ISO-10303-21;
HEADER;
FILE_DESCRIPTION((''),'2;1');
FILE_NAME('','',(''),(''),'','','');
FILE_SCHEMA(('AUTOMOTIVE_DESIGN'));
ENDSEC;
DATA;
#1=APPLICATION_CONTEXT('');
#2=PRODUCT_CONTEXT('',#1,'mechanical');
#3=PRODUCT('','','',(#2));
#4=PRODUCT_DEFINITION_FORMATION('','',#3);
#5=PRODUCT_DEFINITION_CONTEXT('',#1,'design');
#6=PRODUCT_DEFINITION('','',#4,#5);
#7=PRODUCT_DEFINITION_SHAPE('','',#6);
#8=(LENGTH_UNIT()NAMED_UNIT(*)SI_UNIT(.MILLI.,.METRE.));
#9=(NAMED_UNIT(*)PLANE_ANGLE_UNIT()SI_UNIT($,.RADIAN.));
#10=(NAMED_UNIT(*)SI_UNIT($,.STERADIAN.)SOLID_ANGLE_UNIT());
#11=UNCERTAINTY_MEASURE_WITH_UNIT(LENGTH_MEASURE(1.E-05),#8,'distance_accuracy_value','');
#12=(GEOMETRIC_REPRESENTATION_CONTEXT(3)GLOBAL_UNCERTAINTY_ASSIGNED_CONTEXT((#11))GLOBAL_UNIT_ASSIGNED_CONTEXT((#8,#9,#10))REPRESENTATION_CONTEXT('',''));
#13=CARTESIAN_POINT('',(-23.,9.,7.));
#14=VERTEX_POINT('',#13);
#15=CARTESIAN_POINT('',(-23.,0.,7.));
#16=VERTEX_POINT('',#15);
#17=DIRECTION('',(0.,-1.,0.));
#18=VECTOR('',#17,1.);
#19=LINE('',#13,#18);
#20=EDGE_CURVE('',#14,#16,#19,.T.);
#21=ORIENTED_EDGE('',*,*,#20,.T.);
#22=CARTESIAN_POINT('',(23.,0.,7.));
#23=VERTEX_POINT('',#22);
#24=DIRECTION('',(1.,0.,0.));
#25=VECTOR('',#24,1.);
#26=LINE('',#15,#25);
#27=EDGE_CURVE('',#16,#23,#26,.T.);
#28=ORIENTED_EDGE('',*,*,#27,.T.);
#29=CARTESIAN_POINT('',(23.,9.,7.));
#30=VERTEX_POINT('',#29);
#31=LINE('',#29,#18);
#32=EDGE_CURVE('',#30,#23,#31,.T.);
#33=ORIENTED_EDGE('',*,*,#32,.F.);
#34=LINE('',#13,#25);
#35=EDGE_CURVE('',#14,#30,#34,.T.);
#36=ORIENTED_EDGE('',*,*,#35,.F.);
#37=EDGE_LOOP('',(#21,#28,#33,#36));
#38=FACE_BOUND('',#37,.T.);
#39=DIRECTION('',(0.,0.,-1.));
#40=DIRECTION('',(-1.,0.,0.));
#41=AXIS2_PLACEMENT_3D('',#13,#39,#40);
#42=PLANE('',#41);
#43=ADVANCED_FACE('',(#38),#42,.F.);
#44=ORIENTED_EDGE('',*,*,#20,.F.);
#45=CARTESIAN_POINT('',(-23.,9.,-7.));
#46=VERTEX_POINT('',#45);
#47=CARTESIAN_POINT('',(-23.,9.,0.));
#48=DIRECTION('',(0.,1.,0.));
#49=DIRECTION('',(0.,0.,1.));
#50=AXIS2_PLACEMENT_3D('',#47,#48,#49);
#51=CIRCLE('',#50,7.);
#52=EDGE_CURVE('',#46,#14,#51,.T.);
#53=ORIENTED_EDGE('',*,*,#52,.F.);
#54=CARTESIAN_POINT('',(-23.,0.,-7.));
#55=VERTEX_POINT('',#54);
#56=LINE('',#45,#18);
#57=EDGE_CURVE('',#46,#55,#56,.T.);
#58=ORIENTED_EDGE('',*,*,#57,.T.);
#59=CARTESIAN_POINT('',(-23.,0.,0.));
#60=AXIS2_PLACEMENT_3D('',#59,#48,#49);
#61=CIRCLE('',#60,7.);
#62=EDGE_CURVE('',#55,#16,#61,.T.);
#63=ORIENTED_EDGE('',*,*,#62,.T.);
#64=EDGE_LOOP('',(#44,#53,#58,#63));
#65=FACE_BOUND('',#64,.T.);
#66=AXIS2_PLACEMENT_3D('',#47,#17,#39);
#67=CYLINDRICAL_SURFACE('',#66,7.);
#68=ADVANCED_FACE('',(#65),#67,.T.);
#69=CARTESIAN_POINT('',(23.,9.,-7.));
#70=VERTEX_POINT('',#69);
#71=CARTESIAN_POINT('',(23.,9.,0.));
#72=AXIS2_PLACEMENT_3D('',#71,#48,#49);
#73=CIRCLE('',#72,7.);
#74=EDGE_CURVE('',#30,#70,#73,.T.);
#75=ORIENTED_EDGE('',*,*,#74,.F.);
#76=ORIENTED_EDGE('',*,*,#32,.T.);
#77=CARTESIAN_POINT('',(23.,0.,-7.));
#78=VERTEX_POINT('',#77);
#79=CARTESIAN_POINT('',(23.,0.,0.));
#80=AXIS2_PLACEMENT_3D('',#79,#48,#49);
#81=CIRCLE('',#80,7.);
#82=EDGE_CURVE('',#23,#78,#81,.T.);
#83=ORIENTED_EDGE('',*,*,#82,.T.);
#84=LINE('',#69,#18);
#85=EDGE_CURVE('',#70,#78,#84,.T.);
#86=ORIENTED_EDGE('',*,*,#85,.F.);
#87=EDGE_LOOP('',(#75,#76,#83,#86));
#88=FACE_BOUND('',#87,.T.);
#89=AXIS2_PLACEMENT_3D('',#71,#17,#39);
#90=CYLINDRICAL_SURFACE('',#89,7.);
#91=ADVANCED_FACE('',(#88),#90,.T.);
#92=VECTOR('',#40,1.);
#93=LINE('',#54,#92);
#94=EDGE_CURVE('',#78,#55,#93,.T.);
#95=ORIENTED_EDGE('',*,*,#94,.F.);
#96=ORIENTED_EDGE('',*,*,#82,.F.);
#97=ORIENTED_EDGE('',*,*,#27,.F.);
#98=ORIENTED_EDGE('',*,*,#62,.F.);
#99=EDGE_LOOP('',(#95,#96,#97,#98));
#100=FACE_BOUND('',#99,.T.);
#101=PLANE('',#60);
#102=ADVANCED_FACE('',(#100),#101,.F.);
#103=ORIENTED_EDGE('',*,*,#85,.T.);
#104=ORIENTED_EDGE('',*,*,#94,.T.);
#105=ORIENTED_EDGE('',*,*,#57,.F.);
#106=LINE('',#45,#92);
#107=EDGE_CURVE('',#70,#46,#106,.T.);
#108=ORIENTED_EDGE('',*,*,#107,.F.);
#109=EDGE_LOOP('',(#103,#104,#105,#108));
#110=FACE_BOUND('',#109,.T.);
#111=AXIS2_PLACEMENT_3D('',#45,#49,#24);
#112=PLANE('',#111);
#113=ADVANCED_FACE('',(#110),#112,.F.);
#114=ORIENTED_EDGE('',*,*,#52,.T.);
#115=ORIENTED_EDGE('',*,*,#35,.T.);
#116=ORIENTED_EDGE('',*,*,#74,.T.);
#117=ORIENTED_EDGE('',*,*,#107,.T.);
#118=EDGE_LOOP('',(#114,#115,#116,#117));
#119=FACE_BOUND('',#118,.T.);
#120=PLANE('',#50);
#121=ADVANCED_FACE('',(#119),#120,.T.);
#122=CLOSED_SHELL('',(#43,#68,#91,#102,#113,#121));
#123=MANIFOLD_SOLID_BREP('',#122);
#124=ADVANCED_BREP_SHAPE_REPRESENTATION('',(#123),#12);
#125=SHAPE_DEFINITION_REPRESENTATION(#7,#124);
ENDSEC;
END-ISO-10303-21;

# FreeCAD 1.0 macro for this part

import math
import FreeCAD as App
import Part
import Sketcher

doc = App.newDocument("Part")
body = doc.addObject("PartDesign::Body", "Body")

# Sketch on XZ plane
sketch1 = body.newObject("Sketcher::SketchObject", "Sketch")
sketch1.AttachmentSupport = (doc.getObject("XZ_Plane"), [""])
sketch1.MapMode = "FlatFace"
sketch1.addGeometry([
    Part.LineSegment(App.Vector(23, -7, 0), App.Vector(-23, -7, 0)),
    Part.ArcOfCircle(Part.Circle(App.Vector(-23, 0, 0), App.Vector(0, 0, 1), 7), math.radians(90), math.radians(270)),
    Part.LineSegment(App.Vector(-23, 7, 0), App.Vector(23, 7, 0)),
    Part.ArcOfCircle(Part.Circle(App.Vector(23, 0, 0), App.Vector(0, 0, 1), 7), math.radians(-90), math.radians(90)),
], False)
sketch1.addConstraint([
    Sketcher.Constraint("Tangent", 0, 2, 1, 2),
    Sketcher.Constraint("Tangent", 1, 1, 2, 1),
    Sketcher.Constraint("Tangent", 2, 2, 3, 2),
    Sketcher.Constraint("Tangent", 3, 1, 0, 1),
    Sketcher.Constraint("Horizontal", 0),
    Sketcher.Constraint("Horizontal", 2),
    Sketcher.Constraint("Symmetric", 1, 3, 3, 3, -1, 1),
    Sketcher.Constraint("Radius", 1, 7.0),
    Sketcher.Constraint("DistanceX", 0, 2, 0, 1, 46.0),
])
pad1 = body.newObject("PartDesign::Pad", "Pad")
pad1.Profile = sketch1
pad1.Length = 9
pad1.Reversed = True

doc.recompute()
